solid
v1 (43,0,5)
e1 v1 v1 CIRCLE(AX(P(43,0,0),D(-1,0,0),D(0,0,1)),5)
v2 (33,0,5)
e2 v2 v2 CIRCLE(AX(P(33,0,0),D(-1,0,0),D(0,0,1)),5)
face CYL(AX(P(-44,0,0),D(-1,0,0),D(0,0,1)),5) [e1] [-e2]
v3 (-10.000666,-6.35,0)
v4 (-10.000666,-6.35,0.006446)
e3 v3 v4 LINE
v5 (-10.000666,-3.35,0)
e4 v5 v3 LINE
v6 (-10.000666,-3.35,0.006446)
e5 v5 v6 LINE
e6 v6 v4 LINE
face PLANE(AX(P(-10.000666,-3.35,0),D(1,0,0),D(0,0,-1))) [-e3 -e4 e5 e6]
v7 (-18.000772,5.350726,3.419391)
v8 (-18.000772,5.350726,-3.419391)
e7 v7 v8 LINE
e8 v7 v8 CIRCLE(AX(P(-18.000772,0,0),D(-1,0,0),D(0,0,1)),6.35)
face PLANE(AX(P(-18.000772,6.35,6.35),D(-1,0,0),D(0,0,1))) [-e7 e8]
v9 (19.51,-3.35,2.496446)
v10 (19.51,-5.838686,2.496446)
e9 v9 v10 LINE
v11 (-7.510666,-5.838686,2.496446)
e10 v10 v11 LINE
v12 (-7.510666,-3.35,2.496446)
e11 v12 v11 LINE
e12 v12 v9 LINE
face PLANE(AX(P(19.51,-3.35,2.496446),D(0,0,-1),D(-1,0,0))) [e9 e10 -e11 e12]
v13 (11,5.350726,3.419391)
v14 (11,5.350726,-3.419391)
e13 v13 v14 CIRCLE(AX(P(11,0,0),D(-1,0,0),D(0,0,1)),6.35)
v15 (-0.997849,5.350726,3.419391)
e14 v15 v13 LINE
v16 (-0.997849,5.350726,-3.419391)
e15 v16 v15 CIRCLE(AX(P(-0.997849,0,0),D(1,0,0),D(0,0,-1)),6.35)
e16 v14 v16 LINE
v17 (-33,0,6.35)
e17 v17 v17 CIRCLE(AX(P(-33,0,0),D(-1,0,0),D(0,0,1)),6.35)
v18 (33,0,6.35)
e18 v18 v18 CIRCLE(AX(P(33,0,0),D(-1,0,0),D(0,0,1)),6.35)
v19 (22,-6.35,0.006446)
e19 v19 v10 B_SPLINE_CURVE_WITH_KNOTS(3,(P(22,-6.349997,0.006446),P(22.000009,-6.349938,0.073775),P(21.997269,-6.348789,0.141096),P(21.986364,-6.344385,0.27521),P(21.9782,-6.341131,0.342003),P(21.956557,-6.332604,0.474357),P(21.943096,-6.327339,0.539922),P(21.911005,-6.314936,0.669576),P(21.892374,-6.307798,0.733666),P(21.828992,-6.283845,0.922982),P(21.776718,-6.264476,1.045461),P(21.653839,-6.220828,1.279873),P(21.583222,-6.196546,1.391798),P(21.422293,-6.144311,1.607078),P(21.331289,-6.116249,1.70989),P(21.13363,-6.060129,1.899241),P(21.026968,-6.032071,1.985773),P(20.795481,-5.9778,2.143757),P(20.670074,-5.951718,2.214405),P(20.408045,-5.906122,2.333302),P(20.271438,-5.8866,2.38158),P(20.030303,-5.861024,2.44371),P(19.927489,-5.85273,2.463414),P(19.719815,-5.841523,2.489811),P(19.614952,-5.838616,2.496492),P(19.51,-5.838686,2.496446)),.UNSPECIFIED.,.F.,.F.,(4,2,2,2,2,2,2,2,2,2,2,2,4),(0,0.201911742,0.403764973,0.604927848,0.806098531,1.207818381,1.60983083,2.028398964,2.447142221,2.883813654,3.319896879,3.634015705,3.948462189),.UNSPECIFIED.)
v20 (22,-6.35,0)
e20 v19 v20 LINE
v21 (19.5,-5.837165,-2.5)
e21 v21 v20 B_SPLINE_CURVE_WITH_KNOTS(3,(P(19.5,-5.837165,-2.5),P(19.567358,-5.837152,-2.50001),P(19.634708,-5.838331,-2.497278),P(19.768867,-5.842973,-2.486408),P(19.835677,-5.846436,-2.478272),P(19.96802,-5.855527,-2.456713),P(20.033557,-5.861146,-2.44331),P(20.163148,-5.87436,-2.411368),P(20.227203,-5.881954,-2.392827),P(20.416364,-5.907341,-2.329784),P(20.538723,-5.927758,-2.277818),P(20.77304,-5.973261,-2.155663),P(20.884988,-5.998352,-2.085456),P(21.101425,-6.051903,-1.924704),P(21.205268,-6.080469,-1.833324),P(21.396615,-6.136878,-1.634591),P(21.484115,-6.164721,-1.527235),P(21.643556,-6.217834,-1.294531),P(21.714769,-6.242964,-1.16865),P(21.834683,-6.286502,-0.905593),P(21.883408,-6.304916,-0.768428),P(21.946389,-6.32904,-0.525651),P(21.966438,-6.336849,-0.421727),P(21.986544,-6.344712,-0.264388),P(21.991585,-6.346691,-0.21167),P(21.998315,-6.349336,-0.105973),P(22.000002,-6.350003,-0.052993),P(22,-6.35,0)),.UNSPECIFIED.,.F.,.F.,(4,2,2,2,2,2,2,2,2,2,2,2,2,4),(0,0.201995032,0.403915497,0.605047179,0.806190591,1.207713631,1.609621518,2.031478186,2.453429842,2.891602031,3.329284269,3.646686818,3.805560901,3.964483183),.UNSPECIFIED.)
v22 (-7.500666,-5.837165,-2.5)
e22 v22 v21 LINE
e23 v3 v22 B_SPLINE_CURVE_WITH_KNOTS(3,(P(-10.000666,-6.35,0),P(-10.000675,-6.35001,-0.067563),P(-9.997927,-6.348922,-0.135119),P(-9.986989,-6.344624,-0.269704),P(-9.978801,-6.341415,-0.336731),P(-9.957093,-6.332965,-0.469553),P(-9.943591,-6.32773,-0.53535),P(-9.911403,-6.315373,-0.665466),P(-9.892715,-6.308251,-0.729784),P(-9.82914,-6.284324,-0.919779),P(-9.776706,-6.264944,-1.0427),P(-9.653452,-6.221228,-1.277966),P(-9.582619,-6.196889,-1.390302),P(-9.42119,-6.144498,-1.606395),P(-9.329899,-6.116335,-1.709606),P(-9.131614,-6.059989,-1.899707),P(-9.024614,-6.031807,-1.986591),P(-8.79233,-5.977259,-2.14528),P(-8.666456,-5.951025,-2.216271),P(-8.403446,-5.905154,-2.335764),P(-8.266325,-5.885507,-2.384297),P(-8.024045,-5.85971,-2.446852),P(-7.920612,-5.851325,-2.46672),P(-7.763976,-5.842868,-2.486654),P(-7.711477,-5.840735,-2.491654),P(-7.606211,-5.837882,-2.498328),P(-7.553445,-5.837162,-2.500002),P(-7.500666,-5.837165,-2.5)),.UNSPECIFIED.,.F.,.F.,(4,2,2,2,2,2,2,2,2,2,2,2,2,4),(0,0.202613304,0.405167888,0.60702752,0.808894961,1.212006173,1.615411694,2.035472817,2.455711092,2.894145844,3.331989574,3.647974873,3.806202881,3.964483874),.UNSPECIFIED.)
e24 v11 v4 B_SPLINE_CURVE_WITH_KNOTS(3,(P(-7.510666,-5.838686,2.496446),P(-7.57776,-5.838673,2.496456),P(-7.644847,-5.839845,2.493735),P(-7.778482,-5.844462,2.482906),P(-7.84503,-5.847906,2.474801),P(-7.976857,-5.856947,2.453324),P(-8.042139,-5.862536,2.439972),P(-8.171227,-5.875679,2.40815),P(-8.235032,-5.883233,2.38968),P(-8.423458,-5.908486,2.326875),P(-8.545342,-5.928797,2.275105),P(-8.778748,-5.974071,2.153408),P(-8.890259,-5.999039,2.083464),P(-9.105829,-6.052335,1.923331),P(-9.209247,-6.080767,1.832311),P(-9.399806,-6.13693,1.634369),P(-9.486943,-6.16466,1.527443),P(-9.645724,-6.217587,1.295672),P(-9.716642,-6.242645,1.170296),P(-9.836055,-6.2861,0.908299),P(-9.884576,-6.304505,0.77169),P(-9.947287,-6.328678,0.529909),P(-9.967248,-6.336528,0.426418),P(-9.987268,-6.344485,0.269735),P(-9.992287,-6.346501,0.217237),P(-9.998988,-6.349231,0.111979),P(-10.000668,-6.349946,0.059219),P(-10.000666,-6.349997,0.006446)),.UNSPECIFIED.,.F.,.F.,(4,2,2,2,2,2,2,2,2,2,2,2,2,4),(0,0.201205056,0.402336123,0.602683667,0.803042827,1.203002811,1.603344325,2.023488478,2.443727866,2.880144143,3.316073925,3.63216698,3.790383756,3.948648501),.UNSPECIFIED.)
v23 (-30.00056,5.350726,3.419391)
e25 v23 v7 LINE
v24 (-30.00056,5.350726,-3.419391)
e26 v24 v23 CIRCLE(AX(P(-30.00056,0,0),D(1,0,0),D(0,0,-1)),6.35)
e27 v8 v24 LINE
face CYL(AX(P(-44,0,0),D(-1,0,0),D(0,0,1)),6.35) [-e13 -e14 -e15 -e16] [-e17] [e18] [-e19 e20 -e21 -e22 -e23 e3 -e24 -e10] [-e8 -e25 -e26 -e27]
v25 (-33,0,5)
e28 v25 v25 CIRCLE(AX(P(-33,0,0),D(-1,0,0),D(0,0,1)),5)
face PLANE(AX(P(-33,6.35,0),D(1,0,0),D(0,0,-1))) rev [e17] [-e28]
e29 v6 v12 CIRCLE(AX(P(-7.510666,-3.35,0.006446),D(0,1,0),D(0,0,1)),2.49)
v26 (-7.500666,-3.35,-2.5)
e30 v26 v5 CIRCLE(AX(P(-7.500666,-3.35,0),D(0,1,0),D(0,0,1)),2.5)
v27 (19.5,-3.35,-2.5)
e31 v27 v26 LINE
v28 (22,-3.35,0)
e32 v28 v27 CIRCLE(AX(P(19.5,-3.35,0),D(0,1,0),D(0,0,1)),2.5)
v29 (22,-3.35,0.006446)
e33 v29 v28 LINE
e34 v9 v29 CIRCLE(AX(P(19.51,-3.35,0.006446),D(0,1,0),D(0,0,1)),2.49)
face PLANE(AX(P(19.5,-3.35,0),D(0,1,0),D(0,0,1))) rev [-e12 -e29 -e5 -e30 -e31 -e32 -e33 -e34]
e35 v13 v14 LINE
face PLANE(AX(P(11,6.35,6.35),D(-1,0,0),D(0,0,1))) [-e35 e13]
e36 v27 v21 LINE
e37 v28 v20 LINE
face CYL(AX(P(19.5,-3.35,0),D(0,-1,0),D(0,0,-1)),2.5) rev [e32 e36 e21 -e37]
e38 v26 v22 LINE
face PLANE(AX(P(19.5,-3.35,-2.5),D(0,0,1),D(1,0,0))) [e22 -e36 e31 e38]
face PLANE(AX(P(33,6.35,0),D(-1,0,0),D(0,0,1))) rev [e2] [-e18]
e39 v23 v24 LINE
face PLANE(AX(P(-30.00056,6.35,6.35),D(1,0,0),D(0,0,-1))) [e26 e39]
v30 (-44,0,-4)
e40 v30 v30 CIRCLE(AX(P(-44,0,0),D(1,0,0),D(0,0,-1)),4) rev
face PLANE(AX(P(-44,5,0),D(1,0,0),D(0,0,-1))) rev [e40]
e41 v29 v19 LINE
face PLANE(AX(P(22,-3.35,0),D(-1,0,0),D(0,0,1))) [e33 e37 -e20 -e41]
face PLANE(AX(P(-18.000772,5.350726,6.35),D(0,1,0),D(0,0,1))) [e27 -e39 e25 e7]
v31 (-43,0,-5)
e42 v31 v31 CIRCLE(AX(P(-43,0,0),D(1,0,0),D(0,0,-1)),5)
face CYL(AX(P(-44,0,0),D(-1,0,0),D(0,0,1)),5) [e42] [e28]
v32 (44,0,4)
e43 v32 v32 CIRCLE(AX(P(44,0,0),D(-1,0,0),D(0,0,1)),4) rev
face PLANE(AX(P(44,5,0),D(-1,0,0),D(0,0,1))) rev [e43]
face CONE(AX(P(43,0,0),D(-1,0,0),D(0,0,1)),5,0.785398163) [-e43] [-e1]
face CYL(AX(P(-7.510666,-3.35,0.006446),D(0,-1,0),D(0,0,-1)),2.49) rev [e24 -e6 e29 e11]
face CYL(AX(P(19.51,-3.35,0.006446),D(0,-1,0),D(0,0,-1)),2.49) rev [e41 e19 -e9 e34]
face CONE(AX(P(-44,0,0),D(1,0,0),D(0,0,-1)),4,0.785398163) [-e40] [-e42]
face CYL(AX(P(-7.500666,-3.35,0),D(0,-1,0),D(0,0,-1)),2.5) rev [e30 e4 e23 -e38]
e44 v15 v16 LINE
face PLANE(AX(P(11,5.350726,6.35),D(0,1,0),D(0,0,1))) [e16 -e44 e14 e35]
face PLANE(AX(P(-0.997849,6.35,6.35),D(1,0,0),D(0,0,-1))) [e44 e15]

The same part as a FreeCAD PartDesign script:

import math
import FreeCAD as App
import Part
import Sketcher

V = App.Vector
Q = App.Units.Quantity


def edges_at(feature, points):
    """Names of the edges that pass closest to the given points."""
    edges = feature.Shape.Edges
    near = lambda p: min(range(len(edges)), key=lambda i: edges[i].distToShape(Part.Vertex(*p))[0])
    return sorted({f"Edge{near(p) + 1}" for p in points})


def add_polygon(sketch, points):
    """Adds a closed chain of lines whose ends are joined by coincident constraints."""
    first, n = sketch.GeometryCount, len(points)
    for a, b in zip(points, points[1:] + points[:1]):
        sketch.addGeometry(Part.LineSegment(App.Vector(*a, 0), App.Vector(*b, 0)), False)
    for i in range(n):
        sketch.addConstraint(Sketcher.Constraint("Coincident", first + i, 2, first + (i + 1) % n, 1))

doc = App.newDocument("Part")
body = doc.addObject("PartDesign::Body", "Body")

# Sketch on XY plane
sketch1 = body.newObject("Sketcher::SketchObject", "Sketch")
sketch1.AttachmentSupport = (doc.getObject("XY_Plane"), [""])
sketch1.MapMode = "FlatFace"
add_polygon(sketch1, [(33, 6.3), (-33, 6.3), (-33, 5), (-44, 5), (-44, 0), (44, 0), (44, 5), (33, 5)])  # lines 0-7
sketch1.addConstraint(Sketcher.Constraint("Horizontal", 0))
sketch1.addConstraint(Sketcher.Constraint("Vertical", 1))
sketch1.addConstraint(Sketcher.Constraint("Horizontal", 2))
sketch1.addConstraint(Sketcher.Constraint("Vertical", 3))
sketch1.addConstraint(Sketcher.Constraint("Horizontal", 4))
sketch1.addConstraint(Sketcher.Constraint("Vertical", 5))
sketch1.addConstraint(Sketcher.Constraint("Horizontal", 6))
sketch1.addConstraint(Sketcher.Constraint("Vertical", 7))
sketch1.addConstraint(Sketcher.Constraint("Symmetric", 3, 2, 4, 2, -1, 1))
sketch1.addConstraint(Sketcher.Constraint("Symmetric", 1, 2, 6, 2, -2))
sketch1.addConstraint(Sketcher.Constraint("DistanceX", 0, 2, 0, 1, Q("66 mm")))
sketch1.addConstraint(Sketcher.Constraint("DistanceX", 2, 2, 2, 1, Q("11 mm")))
sketch1.addConstraint(Sketcher.Constraint("DistanceY", 3, 2, 3, 1, Q("5 mm")))
sketch1.addConstraint(Sketcher.Constraint("DistanceY", 1, 2, 1, 1, Q("1.35 mm")))
revolution = body.newObject("PartDesign::Revolution", "Revolution")
revolution.Profile = sketch1
revolution.ReferenceAxis = (sketch1, ["H_Axis"])
revolution.Angle = 360
doc.recompute()

chamfer = body.newObject("PartDesign::Chamfer", "Chamfer")
chamfer.Base = (revolution, edges_at(revolution, [(44, 0, -5), (-44, 0, -5)]))
chamfer.Size = 1

# Sketch on XY plane
sketch2 = body.newObject("Sketcher::SketchObject", "Sketch001")
sketch2.AttachmentSupport = (doc.getObject("XY_Plane"), [""])
sketch2.MapMode = "FlatFace"
add_polygon(sketch2, [(-1, 6.3), (-1, 5.4), (11, 5.4), (11, 6.3)])  # lines 0-3
add_polygon(sketch2, [(-30, 6.3), (-30, 5.4), (-18, 5.4), (-18, 6.3)])  # lines 4-7
sketch2.addConstraint(Sketcher.Constraint("Vertical", 0))
sketch2.addConstraint(Sketcher.Constraint("Horizontal", 1))
sketch2.addConstraint(Sketcher.Constraint("Vertical", 2))
sketch2.addConstraint(Sketcher.Constraint("Horizontal", 3))
sketch2.addConstraint(Sketcher.Constraint("Vertical", 4))
sketch2.addConstraint(Sketcher.Constraint("Horizontal", 5))
sketch2.addConstraint(Sketcher.Constraint("Vertical", 6))
sketch2.addConstraint(Sketcher.Constraint("Horizontal", 7))
sketch2.addConstraint(Sketcher.Constraint("Horizontal", 1, 2, 4, 2))
sketch2.addConstraint(Sketcher.Constraint("Horizontal", 3, 2, 6, 2))
sketch2.addConstraint(Sketcher.Constraint("DistanceX", -1, 1, 1, 2, Q("11 mm")))
sketch2.addConstraint(Sketcher.Constraint("DistanceY", -1, 1, 2, 2, Q("6.35 mm")))
sketch2.addConstraint(Sketcher.Constraint("DistanceX", 1, 1, 1, 2, Q("11.997849 mm")))
sketch2.addConstraint(Sketcher.Constraint("DistanceX", 5, 1, 5, 2, Q("11.999788 mm")))
sketch2.addConstraint(Sketcher.Constraint("DistanceY", 0, 2, 0, 1, Q("0.999274 mm")))
sketch2.addConstraint(Sketcher.Constraint("DistanceX", 4, 2, -1, 1, Q("30.00056 mm")))
pocket1 = body.newObject("PartDesign::Pocket", "Pocket")
pocket1.Profile = sketch2
pocket1.Type = "ThroughAll"
pocket1.Midplane = True

# Sketch on XZ plane
sketch3 = body.newObject("Sketcher::SketchObject", "Sketch002")
sketch3.AttachmentSupport = (doc.getObject("XZ_Plane"), [""])
sketch3.MapMode = "FlatFace"
sketch3.AttachmentOffset = App.Placement(V(0, 0, 6.35), App.Rotation())
sketch3.addGeometry(Part.LineSegment(V(19.5, -2.5, 0), V(-7.501, -2.5, 0)), False)
sketch3.addGeometry(Part.ArcOfCircle(Part.Circle(V(-7.501, 0, 0), V(0, 0, 1), 2.5), math.radians(180), math.radians(270)), False)
sketch3.addGeometry(Part.LineSegment(V(-10.001, 0, 0), V(-10.001, 0.006, 0)), False)
sketch3.addGeometry(Part.ArcOfCircle(Part.Circle(V(-7.511, 0.006, 0), V(0, 0, 1), 2.49), math.radians(90), math.radians(180)), False)
sketch3.addGeometry(Part.LineSegment(V(-7.511, 2.496, 0), V(19.51, 2.496, 0)), False)
sketch3.addGeometry(Part.ArcOfCircle(Part.Circle(V(19.51, 0.006, 0), V(0, 0, 1), 2.49), math.radians(0), math.radians(90)), False)
sketch3.addGeometry(Part.LineSegment(V(22, 0.006, 0), V(22, 0, 0)), False)
sketch3.addGeometry(Part.ArcOfCircle(Part.Circle(V(19.5, 0, 0), V(0, 0, 1), 2.5), math.radians(-90), math.radians(0)), False)
sketch3.addConstraint(Sketcher.Constraint("Tangent", 0, 2, 1, 2))
sketch3.addConstraint(Sketcher.Constraint("Tangent", 1, 1, 2, 1))
sketch3.addConstraint(Sketcher.Constraint("Tangent", 2, 2, 3, 2))
sketch3.addConstraint(Sketcher.Constraint("Tangent", 3, 1, 4, 1))
sketch3.addConstraint(Sketcher.Constraint("Tangent", 4, 2, 5, 2))
sketch3.addConstraint(Sketcher.Constraint("Tangent", 5, 1, 6, 1))
sketch3.addConstraint(Sketcher.Constraint("Tangent", 6, 2, 7, 2))
sketch3.addConstraint(Sketcher.Constraint("Tangent", 7, 1, 0, 1))
sketch3.addConstraint(Sketcher.Constraint("Horizontal", 0))
sketch3.addConstraint(Sketcher.Constraint("Horizontal", 4))
sketch3.addConstraint(Sketcher.Constraint("Equal", 3, 5))
sketch3.addConstraint(Sketcher.Constraint("Equal", 1, 7))
sketch3.addConstraint(Sketcher.Constraint("PointOnObject", 1, 3, -1))
sketch3.addConstraint(Sketcher.Constraint("PointOnObject", 1, 1, -1))
sketch3.addConstraint(Sketcher.Constraint("PointOnObject", 6, 2, -1))
sketch3.addConstraint(Sketcher.Constraint("Radius", 1, Q("2.5 mm")))
sketch3.addConstraint(Sketcher.Constraint("Radius", 3, Q("2.49 mm")))
sketch3.addConstraint(Sketcher.Constraint("DistanceX", -1, 1, 5, 1, Q("22 mm")))
sketch3.addConstraint(Sketcher.Constraint("DistanceX", 0, 2, 0, 1, Q("27.000666 mm")))
sketch3.addConstraint(Sketcher.Constraint("DistanceY", 2, 1, 2, 2, Q("0.006446 mm")))
pocket2 = body.newObject("PartDesign::Pocket", "Pocket001")
pocket2.Profile = sketch3
pocket2.Length = 3

doc.recompute()
